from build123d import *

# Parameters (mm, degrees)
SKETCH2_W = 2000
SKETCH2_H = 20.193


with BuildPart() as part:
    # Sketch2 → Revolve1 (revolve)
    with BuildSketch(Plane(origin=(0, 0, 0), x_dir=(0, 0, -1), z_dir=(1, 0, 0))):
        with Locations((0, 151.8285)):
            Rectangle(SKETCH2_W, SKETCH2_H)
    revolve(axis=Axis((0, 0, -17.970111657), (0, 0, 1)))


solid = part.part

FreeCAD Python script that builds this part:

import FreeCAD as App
import Part
import Sketcher

V = App.Vector
Q = App.Units.Quantity


def add_polygon(sketch, points):
    """Adds a closed chain of lines whose ends are joined by coincident constraints."""
    first, n = sketch.GeometryCount, len(points)
    for a, b in zip(points, points[1:] + points[:1]):
        sketch.addGeometry(Part.LineSegment(App.Vector(*a, 0), App.Vector(*b, 0)), False)
    for i in range(n):
        sketch.addConstraint(Sketcher.Constraint("Coincident", first + i, 2, first + (i + 1) % n, 1))

doc = App.newDocument("Part")
body = doc.addObject("PartDesign::Body", "Body")

# Sketch on YZ plane
sketch1 = body.newObject("Sketcher::SketchObject", "Sketch")
sketch1.AttachmentSupport = (doc.getObject("YZ_Plane"), [""])
sketch1.MapMode = "FlatFace"
add_polygon(sketch1, [(162, 1000), (142, 1000), (142, -1000), (162, -1000)])  # lines 0-3
sketch1.addConstraint([
    Sketcher.Constraint("Horizontal", 0),
    Sketcher.Constraint("Vertical", 1),
    Sketcher.Constraint("Horizontal", 2),
    Sketcher.Constraint("Vertical", 3),
    Sketcher.Constraint("DistanceY", 1, 2, 1, 1, Q("2000 mm")),
    Sketcher.Constraint("DistanceY", -1, 1, 0, 2, Q("1000 mm")),
    Sketcher.Constraint("DistanceX", 0, 2, 0, 1, Q("20.193 mm")),
    Sketcher.Constraint("DistanceX", -1, 1, 0, 2, Q("141.732 mm")),
])
revolution = body.newObject("PartDesign::Revolution", "Revolution")
revolution.Profile = sketch1
revolution.ReferenceAxis = (sketch1, ["V_Axis"])
revolution.Angle = 360

doc.recompute()
